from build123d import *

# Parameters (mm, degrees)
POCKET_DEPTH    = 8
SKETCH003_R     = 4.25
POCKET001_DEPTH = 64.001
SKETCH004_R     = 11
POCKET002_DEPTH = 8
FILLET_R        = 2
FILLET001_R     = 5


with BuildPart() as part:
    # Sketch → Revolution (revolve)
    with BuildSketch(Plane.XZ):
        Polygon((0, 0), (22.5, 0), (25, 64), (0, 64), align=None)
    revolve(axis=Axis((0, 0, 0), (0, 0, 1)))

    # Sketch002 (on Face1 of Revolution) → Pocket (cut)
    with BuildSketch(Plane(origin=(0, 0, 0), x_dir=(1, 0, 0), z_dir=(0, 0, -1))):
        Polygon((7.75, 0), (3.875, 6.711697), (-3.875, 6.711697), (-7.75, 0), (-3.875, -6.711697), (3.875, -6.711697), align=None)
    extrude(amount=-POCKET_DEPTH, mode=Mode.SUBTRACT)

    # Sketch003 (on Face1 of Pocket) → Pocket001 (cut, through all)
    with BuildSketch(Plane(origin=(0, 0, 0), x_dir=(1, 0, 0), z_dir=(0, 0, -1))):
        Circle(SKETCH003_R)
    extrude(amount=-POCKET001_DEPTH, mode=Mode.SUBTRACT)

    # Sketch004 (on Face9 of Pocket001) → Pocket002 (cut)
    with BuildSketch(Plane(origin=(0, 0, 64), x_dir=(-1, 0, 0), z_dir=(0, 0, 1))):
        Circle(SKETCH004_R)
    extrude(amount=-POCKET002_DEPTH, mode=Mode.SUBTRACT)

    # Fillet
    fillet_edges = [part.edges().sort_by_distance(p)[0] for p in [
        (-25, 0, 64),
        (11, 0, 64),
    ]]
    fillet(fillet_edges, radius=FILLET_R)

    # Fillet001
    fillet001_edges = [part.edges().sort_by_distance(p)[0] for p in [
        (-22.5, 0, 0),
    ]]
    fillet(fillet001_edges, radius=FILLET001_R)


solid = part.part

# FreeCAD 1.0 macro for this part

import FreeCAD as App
import Part
import Sketcher
from FreeCAD import Vector
Q = App.Units.Quantity


def edges_at(feature, points):
    """Names of the edges that pass closest to the given points."""
    edges = feature.Shape.Edges
    near = lambda p: min(range(len(edges)), key=lambda i: edges[i].distToShape(Part.Vertex(*p))[0])
    return sorted({f"Edge{near(p) + 1}" for p in points})

doc = App.newDocument("Part")
body = doc.addObject("PartDesign::Body", "Body")

# Sketch on XZ plane
sketch1 = body.newObject("Sketcher::SketchObject", "Sketch")
sketch1.AttachmentSupport = (doc.getObject("XZ_Plane"), [""])
sketch1.MapMode = "FlatFace"
sketch1.addGeometry([
    Part.LineSegment(Vector(0, 0, 0), Vector(22, 0, 0)),
    Part.LineSegment(Vector(22, 0, 0), Vector(25, 64, 0)),
    Part.LineSegment(Vector(25, 64, 0), Vector(0, 64, 0)),
    Part.LineSegment(Vector(0, 64, 0), Vector(0, 0, 0)),
], False)
sketch1.addConstraint([
    Sketcher.Constraint("Coincident", 0, 2, 1, 1),
    Sketcher.Constraint("Coincident", 1, 2, 2, 1),
    Sketcher.Constraint("Coincident", 2, 2, 3, 1),
    Sketcher.Constraint("Coincident", 3, 2, 0, 1),
    Sketcher.Constraint("Horizontal", 0),
    Sketcher.Constraint("Horizontal", 2),
    Sketcher.Constraint("Vertical", 3),
    Sketcher.Constraint("Coincident", 3, 2, -1, 1),
    Sketcher.Constraint("DistanceX", 2, 2, 2, 1, Q("25 mm")),
    Sketcher.Constraint("DistanceY", 3, 2, 3, 1, Q("64 mm")),
    Sketcher.Constraint("DistanceX", 0, 1, 0, 2, Q("22.5 mm")),
])
revolution = body.newObject("PartDesign::Revolution", "Revolution")
revolution.Profile = sketch1
revolution.ReferenceAxis = (sketch1, ["V_Axis"])
revolution.Angle = 360

# Sketch on XY plane
sketch2 = body.newObject("Sketcher::SketchObject", "Sketch001")
sketch2.AttachmentSupport = (doc.getObject("XY_Plane"), [""])
sketch2.MapMode = "FlatFace"
sketch2.addGeometry([
    Part.LineSegment(Vector(8, 0, 0), Vector(4, -7, 0)),  # 0
    Part.LineSegment(Vector(4, -7, 0), Vector(-4, -7, 0)),  # 1
    Part.LineSegment(Vector(-4, -7, 0), Vector(-8, 0, 0)),  # 2
    Part.LineSegment(Vector(-8, 0, 0), Vector(-4, 7, 0)),  # 3
    Part.LineSegment(Vector(-4, 7, 0), Vector(4, 7, 0)),  # 4
    Part.LineSegment(Vector(4, 7, 0), Vector(8, 0, 0)),  # 5
], False)
sketch2.addConstraint([
    Sketcher.Constraint("Coincident", 0, 2, 1, 1),
    Sketcher.Constraint("Coincident", 1, 2, 2, 1),
    Sketcher.Constraint("Coincident", 2, 2, 3, 1),
    Sketcher.Constraint("Coincident", 3, 2, 4, 1),
    Sketcher.Constraint("Coincident", 4, 2, 5, 1),
    Sketcher.Constraint("Coincident", 5, 2, 0, 1),
    Sketcher.Constraint("Horizontal", 1),
    Sketcher.Constraint("Horizontal", 4),
    Sketcher.Constraint("Symmetric", 0, 2, 3, 2, -1, 1),
    Sketcher.Constraint("Symmetric", 2, 2, 5, 2, -1, 1),
    Sketcher.Constraint("PointOnObject", 2, 2, -1),
    Sketcher.Constraint("Parallel", 2, 5),
    Sketcher.Constraint("Vertical", 1, 2, 3, 2),
    Sketcher.Constraint("Angle", 0, Q("-120 deg")),
    Sketcher.Constraint("DistanceX", 1, 2, 1, 1, Q("7.75 mm")),
    Sketcher.Constraint("DistanceX", 2, 2, 5, 2, Q("15.5 mm")),
])
pocket1 = body.newObject("PartDesign::Pocket", "Pocket")
pocket1.Profile = sketch2
pocket1.Length = 8
pocket1.Reversed = True

# Sketch on XY plane
sketch3 = body.newObject("Sketcher::SketchObject", "Sketch002")
sketch3.AttachmentSupport = (doc.getObject("XY_Plane"), [""])
sketch3.MapMode = "FlatFace"
sketch3.addGeometry(Part.Circle(Vector(0, 0, 0), Vector(0, 0, 1), 4.2), False)
sketch3.addConstraint([
    Sketcher.Constraint("Coincident", 0, 3, -1, 1),
    Sketcher.Constraint("Diameter", 0, Q("8.5 mm")),
])
pocket2 = body.newObject("PartDesign::Pocket", "Pocket001")
pocket2.Profile = sketch3
pocket2.Type = "ThroughAll"
pocket2.Reversed = True

# Sketch on XY plane
sketch4 = body.newObject("Sketcher::SketchObject", "Sketch003")
sketch4.AttachmentSupport = (doc.getObject("XY_Plane"), [""])
sketch4.MapMode = "FlatFace"
sketch4.AttachmentOffset = App.Placement(Vector(0, 0, 64), App.Rotation())
sketch4.addGeometry(Part.Circle(Vector(0, 0, 0), Vector(0, 0, 1), 11), False)
sketch4.addConstraint([
    Sketcher.Constraint("Coincident", 0, 3, -1, 1),
    Sketcher.Constraint("Diameter", 0, Q("22 mm")),
])
pocket3 = body.newObject("PartDesign::Pocket", "Pocket002")
pocket3.Profile = sketch4
pocket3.Length = 8
doc.recompute()

fillet = body.newObject("PartDesign::Fillet", "Fillet")
fillet.Base = (pocket3, edges_at(pocket3, [(-25, 0, 64), (11, 0, 64)]))
fillet.Radius = 2
doc.recompute()

fillet2 = body.newObject("PartDesign::Fillet", "Fillet001")
fillet2.Base = (fillet, edges_at(fillet, [(-22.5, 0, 0)]))
fillet2.Radius = 5

doc.recompute()
